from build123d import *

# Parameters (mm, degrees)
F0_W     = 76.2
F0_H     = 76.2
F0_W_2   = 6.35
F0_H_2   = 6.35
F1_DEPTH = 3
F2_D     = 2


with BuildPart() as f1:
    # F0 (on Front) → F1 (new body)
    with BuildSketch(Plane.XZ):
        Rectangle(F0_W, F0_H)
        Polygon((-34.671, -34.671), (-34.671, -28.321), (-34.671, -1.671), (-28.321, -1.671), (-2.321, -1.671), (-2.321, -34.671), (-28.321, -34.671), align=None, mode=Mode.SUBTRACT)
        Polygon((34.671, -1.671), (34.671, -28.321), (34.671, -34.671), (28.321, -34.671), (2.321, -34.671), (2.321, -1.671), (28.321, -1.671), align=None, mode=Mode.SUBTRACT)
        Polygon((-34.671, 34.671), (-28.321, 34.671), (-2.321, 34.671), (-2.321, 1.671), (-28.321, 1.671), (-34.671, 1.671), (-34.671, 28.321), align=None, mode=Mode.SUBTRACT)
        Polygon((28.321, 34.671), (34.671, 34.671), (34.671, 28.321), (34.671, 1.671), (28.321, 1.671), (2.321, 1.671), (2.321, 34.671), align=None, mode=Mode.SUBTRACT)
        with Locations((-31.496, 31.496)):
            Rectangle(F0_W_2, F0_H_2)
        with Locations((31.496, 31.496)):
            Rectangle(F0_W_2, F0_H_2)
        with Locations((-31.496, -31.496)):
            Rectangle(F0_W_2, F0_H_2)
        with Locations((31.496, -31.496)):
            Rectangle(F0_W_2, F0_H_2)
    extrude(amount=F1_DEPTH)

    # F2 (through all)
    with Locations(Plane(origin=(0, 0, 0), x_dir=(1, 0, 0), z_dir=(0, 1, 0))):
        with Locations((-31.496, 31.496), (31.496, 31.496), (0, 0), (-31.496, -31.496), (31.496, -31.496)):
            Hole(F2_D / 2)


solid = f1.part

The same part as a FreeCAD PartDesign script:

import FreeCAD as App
import Part
import Sketcher

V = App.Vector


def add_polygon(sketch, points):
    """Adds a closed chain of lines whose ends are joined by coincident constraints."""
    first, n = sketch.GeometryCount, len(points)
    for a, b in zip(points, points[1:] + points[:1]):
        sketch.addGeometry(Part.LineSegment(App.Vector(*a, 0), App.Vector(*b, 0)), False)
    for i in range(n):
        sketch.addConstraint(Sketcher.Constraint("Coincident", first + i, 2, first + (i + 1) % n, 1))

doc = App.newDocument("Part")
params = doc.addObject("Spreadsheet::Sheet", "Params")
for row, (alias, value) in enumerate([
    ("sketch1_width", "26 mm"),
    ("sketch1_height", "33 mm"),
    ("sketch1_width2", "76.2 mm"),
    ("sketch1_width3", "6.35 mm"),
    ("pad1_length", "3 mm"),
    ("sketch2_diameter", "2 mm"),
    ("hole_diameter", "2 mm"),
], start=1):
    params.set(f"A{row}", alias)
    params.set(f"B{row}", "=" + value)
    params.setAlias(f"B{row}", alias)

body = doc.addObject("PartDesign::Body", "Body")

sketch1 = body.newObject("Sketcher::SketchObject", "Sketch")
sketch1.AttachmentSupport = (doc.getObject("XZ_Plane"), [""])
sketch1.MapMode = "FlatFace"
add_polygon(sketch1, [(-38.1, 38.1), (-38.1, -38.1), (38.1, -38.1), (38.1, 38.1)])
add_polygon(sketch1, [(-2.321, -34.671), (-28.321, -34.671), (-28.321, -28.321), (-34.671, -28.321), (-34.671, -1.671), (-2.321, -1.671)])
add_polygon(sketch1, [(2.321, -1.671), (34.671, -1.671), (34.671, -28.321), (28.321, -28.321), (28.321, -34.671), (2.321, -34.671)])
add_polygon(sketch1, [(-34.671, 1.671), (-34.671, 28.321), (-28.321, 28.321), (-28.321, 34.671), (-2.321, 34.671), (-2.321, 1.671)])
add_polygon(sketch1, [(2.321, 34.671), (28.321, 34.671), (28.321, 28.321), (34.671, 28.321), (34.671, 1.671), (2.321, 1.671)])
sketch1.addConstraint(Sketcher.Constraint("Vertical", 0))
sketch1.addConstraint(Sketcher.Constraint("Horizontal", 1))
sketch1.addConstraint(Sketcher.Constraint("Vertical", 2))
sketch1.addConstraint(Sketcher.Constraint("Horizontal", 3))
sketch1.addConstraint(Sketcher.Constraint("Horizontal", 4))
sketch1.addConstraint(Sketcher.Constraint("Vertical", 5))
sketch1.addConstraint(Sketcher.Constraint("Horizontal", 6))
sketch1.addConstraint(Sketcher.Constraint("Vertical", 7))
sketch1.addConstraint(Sketcher.Constraint("Horizontal", 8))
sketch1.addConstraint(Sketcher.Constraint("Vertical", 9))
sketch1.addConstraint(Sketcher.Constraint("Horizontal", 10))
sketch1.addConstraint(Sketcher.Constraint("Vertical", 11))
sketch1.addConstraint(Sketcher.Constraint("Horizontal", 12))
sketch1.addConstraint(Sketcher.Constraint("Vertical", 13))
sketch1.addConstraint(Sketcher.Constraint("Horizontal", 14))
sketch1.addConstraint(Sketcher.Constraint("Vertical", 15))
sketch1.addConstraint(Sketcher.Constraint("Vertical", 16))
sketch1.addConstraint(Sketcher.Constraint("Horizontal", 17))
sketch1.addConstraint(Sketcher.Constraint("Vertical", 18))
sketch1.addConstraint(Sketcher.Constraint("Horizontal", 19))
sketch1.addConstraint(Sketcher.Constraint("Vertical", 20))
sketch1.addConstraint(Sketcher.Constraint("Horizontal", 21))
sketch1.addConstraint(Sketcher.Constraint("Horizontal", 22))
sketch1.addConstraint(Sketcher.Constraint("Vertical", 23))
sketch1.addConstraint(Sketcher.Constraint("Horizontal", 24))
sketch1.addConstraint(Sketcher.Constraint("Vertical", 25))
sketch1.addConstraint(Sketcher.Constraint("Horizontal", 26))
sketch1.addConstraint(Sketcher.Constraint("Vertical", 27))
sketch1.addConstraint(Sketcher.Constraint("Symmetric", 0, 2, 2, 2, -1, 1))
sketch1.addConstraint(Sketcher.Constraint("Symmetric", 11, 2, 16, 2, -1, 1))
sketch1.addConstraint(Sketcher.Constraint("Symmetric", 13, 2, 18, 2, -1, 1))
sketch1.addConstraint(Sketcher.Constraint("Symmetric", 15, 2, 20, 2, -1, 1))
sketch1.addConstraint(Sketcher.Constraint("Symmetric", 4, 2, 22, 2, -1, 1))
sketch1.addConstraint(Sketcher.Constraint("Symmetric", 6, 2, 24, 2, -1, 1))
sketch1.addConstraint(Sketcher.Constraint("Symmetric", 8, 2, 26, 2, -1, 1))
sketch1.addConstraint(Sketcher.Constraint("Symmetric", 7, 2, 10, 2, -2))
sketch1.addConstraint(Sketcher.Constraint("Symmetric", 5, 2, 12, 2, -2))
sketch1.addConstraint(Sketcher.Constraint("Symmetric", 9, 2, 14, 2, -2))
sketch1.addConstraint(Sketcher.Constraint("Equal", 3, 0))
sketch1.addConstraint(Sketcher.Constraint("Equal", 24, 5))
sketch1.addConstraint(Sketcher.Constraint("DistanceX", 4, 2, 4, 1, 26.0))
sketch1.addConstraint(Sketcher.Constraint("DistanceY", 9, 2, 9, 1, 33.0))
sketch1.addConstraint(Sketcher.Constraint("DistanceX", 1, 1, 1, 2, 76.2))
sketch1.addConstraint(Sketcher.Constraint("DistanceX", 6, 2, 6, 1, 6.35))
sketch1.addConstraint(Sketcher.Constraint("DistanceX", 4, 2, -1, 1, 28.321))
sketch1.addConstraint(Sketcher.Constraint("DistanceY", 4, 2, -1, 1, 34.671))
sketch1.setExpression("Constraints[68]", "Params.sketch1_width")
sketch1.setExpression("Constraints[69]", "Params.sketch1_height")
sketch1.setExpression("Constraints[70]", "Params.sketch1_width2")
sketch1.setExpression("Constraints[71]", "Params.sketch1_width3")
pad1 = body.newObject("PartDesign::Pad", "Pad")
pad1.Profile = sketch1
pad1.setExpression("Length", "Params.pad1_length")

sketch2 = body.newObject("Sketcher::SketchObject", "Sketch001")
sketch2.AttachmentSupport = (doc.getObject("XZ_Plane"), [""])
sketch2.MapMode = "FlatFace"
sketch2.addGeometry(Part.Circle(V(-31.496, -31.496, 0), V(0, 0, 1), 1), False)
sketch2.addGeometry(Part.Circle(V(31.496, -31.496, 0), V(0, 0, 1), 1), False)
sketch2.addGeometry(Part.Circle(V(0, 0, 0), V(0, 0, 1), 1), False)
sketch2.addGeometry(Part.Circle(V(-31.496, 31.496, 0), V(0, 0, 1), 1), False)
sketch2.addGeometry(Part.Circle(V(31.496, 31.496, 0), V(0, 0, 1), 1), False)
sketch2.addConstraint(Sketcher.Constraint("Coincident", 2, 3, -1, 1))
sketch2.addConstraint(Sketcher.Constraint("Equal", 0, 1))
sketch2.addConstraint(Sketcher.Constraint("Equal", 1, 2))
sketch2.addConstraint(Sketcher.Constraint("Equal", 2, 3))
sketch2.addConstraint(Sketcher.Constraint("Equal", 3, 4))
sketch2.addConstraint(Sketcher.Constraint("Symmetric", 1, 3, 3, 3, -1, 1))
sketch2.addConstraint(Sketcher.Constraint("Symmetric", 0, 3, 4, 3, -1, 1))
sketch2.addConstraint(Sketcher.Constraint("Symmetric", 0, 3, 1, 3, -2))
sketch2.addConstraint(Sketcher.Constraint("Diameter", 0, 2.0))
sketch2.addConstraint(Sketcher.Constraint("DistanceX", 0, 3, -1, 1, 31.496))
sketch2.addConstraint(Sketcher.Constraint("DistanceY", 0, 3, -1, 1, 31.496))
sketch2.setExpression("Constraints[8]", "Params.sketch2_diameter")
doc.recompute()
hole = body.newObject("PartDesign::Hole", "Hole")
hole.Profile = sketch2
hole.ThreadType = "None"
hole.setExpression("Diameter", "Params.hole_diameter")
hole.DepthType = "ThroughAll"
hole.Reversed = True

doc.recompute()
